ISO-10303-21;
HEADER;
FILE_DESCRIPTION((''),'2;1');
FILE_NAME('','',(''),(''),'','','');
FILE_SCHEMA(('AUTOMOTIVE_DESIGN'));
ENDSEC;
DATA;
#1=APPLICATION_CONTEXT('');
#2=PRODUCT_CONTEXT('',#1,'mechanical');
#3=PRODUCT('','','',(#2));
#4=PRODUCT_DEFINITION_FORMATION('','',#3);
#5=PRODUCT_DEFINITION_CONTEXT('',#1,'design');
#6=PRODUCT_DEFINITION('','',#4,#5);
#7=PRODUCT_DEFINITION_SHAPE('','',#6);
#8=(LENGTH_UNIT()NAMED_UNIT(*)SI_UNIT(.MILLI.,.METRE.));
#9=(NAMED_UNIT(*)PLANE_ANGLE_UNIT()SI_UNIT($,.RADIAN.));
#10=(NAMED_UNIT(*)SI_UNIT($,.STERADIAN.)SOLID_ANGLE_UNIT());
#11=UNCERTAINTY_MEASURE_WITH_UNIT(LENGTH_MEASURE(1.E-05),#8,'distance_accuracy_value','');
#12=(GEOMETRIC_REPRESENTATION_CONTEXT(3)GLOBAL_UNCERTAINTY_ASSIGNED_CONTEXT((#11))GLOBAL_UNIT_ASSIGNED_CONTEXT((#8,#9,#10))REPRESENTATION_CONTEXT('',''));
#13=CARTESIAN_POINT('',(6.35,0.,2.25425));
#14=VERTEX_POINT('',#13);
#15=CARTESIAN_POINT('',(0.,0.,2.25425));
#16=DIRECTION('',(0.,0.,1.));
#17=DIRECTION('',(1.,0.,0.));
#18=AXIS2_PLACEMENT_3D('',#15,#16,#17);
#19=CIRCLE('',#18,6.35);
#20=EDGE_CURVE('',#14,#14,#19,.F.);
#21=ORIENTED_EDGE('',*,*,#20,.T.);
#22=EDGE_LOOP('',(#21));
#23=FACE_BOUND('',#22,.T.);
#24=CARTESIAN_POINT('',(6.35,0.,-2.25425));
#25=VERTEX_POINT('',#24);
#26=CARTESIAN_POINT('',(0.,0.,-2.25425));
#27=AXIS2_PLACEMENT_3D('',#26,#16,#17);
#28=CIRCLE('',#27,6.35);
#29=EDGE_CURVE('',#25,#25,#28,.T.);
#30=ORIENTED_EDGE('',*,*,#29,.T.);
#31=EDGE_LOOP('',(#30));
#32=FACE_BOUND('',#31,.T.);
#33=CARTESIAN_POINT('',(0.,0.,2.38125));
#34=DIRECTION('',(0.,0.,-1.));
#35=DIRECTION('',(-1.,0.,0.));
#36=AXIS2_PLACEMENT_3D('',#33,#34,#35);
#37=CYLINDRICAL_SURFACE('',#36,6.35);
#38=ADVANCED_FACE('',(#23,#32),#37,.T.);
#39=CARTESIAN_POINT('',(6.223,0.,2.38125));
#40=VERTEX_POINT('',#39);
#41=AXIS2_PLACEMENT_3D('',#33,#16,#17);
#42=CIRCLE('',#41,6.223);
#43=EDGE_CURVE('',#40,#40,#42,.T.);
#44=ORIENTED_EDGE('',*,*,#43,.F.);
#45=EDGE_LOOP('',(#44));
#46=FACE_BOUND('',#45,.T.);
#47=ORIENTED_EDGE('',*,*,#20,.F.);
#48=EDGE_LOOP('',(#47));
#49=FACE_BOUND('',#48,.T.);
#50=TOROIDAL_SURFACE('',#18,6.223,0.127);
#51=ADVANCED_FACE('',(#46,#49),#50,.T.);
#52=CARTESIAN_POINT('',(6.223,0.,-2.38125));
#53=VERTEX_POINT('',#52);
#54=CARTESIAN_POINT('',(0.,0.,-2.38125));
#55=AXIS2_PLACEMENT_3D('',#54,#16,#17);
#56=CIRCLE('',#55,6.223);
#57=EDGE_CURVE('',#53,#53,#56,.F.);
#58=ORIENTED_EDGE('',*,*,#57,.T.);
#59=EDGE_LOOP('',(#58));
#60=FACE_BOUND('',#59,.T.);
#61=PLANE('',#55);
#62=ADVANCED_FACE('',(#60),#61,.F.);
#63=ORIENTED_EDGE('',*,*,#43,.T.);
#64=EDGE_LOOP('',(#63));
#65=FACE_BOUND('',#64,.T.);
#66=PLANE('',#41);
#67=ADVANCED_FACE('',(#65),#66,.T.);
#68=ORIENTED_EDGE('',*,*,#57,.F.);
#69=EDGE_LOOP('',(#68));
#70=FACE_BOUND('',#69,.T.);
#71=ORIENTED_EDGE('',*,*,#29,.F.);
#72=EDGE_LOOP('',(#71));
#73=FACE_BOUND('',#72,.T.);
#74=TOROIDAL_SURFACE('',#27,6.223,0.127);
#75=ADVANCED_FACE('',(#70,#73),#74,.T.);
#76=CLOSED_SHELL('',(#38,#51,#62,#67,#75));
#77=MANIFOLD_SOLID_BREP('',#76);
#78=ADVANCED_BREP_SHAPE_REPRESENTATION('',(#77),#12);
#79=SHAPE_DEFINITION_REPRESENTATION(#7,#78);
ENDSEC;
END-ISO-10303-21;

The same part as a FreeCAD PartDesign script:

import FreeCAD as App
import Part
import Sketcher

V = App.Vector
Q = App.Units.Quantity


def edges_at(feature, points):
    """Names of the edges that pass closest to the given points."""
    edges = feature.Shape.Edges
    near = lambda p: min(range(len(edges)), key=lambda i: edges[i].distToShape(Part.Vertex(*p))[0])
    return sorted({f"Edge{near(p) + 1}" for p in points})

doc = App.newDocument("Part")
params = doc.addObject("Spreadsheet::Sheet", "Params")
for row, (alias, value) in enumerate([
    ("sketch1_diameter", "0.5 in"),
    ("pad1_length", "0.09375 in"),
    ("pad1_length2", "0.09375 in"),
    ("fillet_radius", "0.005 in"),
], start=1):
    params.set(f"A{row}", alias)
    params.set(f"B{row}", "=" + value)
    params.setAlias(f"B{row}", alias)

body = doc.addObject("PartDesign::Body", "Body")

# Sketch on XY plane
sketch1 = doc.addObject("Sketcher::SketchObject", "Sketch")
body.addObject(sketch1)
sketch1.AttachmentSupport = (doc.XY_Plane, [""])
sketch1.MapMode = "FlatFace"
sketch1.addGeometry(Part.Circle(V(0, 0, 0), V(0, 0, 1), 6), False)
sketch1.addConstraint([
    Sketcher.Constraint("Coincident", 0, 3, -1, 1),
    Sketcher.Constraint("Diameter", 0, Q("0.5 in")),
])
sketch1.setExpression("Constraints[1]", "Params.sketch1_diameter")
pad1 = doc.addObject("PartDesign::Pad", "Pad")
body.addObject(pad1)
pad1.Profile = sketch1
pad1.Type = "TwoLengths"
pad1.setExpression("Length", "Params.pad1_length")
pad1.setExpression("Length2", "Params.pad1_length2")
doc.recompute()

fillet = doc.addObject("PartDesign::Fillet", "Fillet")
body.addObject(fillet)
fillet.Base = (pad1, edges_at(pad1, [(-6.35, 0, -2.381), (-6.35, 0, 2.381)]))
fillet.setExpression("Radius", "Params.fillet_radius")

doc.recompute()
